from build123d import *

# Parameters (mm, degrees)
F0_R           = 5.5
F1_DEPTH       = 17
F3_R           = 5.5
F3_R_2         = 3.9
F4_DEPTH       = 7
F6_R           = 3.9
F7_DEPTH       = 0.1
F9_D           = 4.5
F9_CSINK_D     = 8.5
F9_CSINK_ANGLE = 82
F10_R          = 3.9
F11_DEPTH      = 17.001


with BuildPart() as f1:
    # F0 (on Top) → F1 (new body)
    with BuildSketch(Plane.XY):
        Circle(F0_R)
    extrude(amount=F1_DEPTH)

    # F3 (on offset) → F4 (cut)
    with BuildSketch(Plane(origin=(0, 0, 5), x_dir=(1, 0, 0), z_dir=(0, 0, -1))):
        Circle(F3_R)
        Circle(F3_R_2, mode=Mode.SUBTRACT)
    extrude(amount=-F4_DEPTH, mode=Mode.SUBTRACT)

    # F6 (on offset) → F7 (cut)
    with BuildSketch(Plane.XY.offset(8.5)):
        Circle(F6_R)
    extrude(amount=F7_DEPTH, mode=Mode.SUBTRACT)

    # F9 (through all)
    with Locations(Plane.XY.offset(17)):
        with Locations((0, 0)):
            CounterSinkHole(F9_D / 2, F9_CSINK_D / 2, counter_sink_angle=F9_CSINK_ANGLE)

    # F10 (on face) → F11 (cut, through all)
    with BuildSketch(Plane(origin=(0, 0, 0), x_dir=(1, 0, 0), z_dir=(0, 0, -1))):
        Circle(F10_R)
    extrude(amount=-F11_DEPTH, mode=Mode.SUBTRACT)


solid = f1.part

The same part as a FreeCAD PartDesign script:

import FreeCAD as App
import Part
import Sketcher

V = App.Vector
Q = App.Units.Quantity

doc = App.newDocument("Part")
params = doc.addObject("Spreadsheet::Sheet", "Params")
for row, (alias, value) in enumerate([
    ("sketch1_diameter", "11 mm"),
    ("pad1_length", "17 mm"),
    ("sketch2_diameter", "11 mm"),
    ("sketch2_diameter2", "7.8 mm"),
    ("pocket1_length", "7 mm"),
    ("sketch3_diameter", "7.8 mm"),
    ("pocket2_length", "0.1 mm"),
    ("sketch4_diameter", "4.5 mm"),
    ("hole_diameter", "4.5 mm"),
    ("hole_csink_diameter", "8.5 mm"),
    ("sketch5_diameter", "7.8 mm"),
], start=1):
    params.set(f"A{row}", alias)
    params.set(f"B{row}", "=" + value)
    params.setAlias(f"B{row}", alias)

body = doc.addObject("PartDesign::Body", "Body")
body.AllowCompound = True

# Sketch on XY plane
sketch1 = body.newObject("Sketcher::SketchObject", "Sketch")
sketch1.AttachmentSupport = (doc.getObject("XY_Plane"), [""])
sketch1.MapMode = "FlatFace"
sketch1.addGeometry(Part.Circle(V(0, 0, 0), V(0, 0, 1), 5.5), False)
sketch1.addConstraint([
    Sketcher.Constraint("Coincident", 0, 3, -1, 1),
    Sketcher.Constraint("Diameter", 0, Q("11 mm")),
])
sketch1.setExpression("Constraints[1]", "Params.sketch1_diameter")
pad1 = body.newObject("PartDesign::Pad", "Pad")
pad1.Profile = sketch1
pad1.setExpression("Length", "Params.pad1_length")

# Sketch on XY plane
sketch2 = body.newObject("Sketcher::SketchObject", "Sketch001")
sketch2.AttachmentSupport = (doc.getObject("XY_Plane"), [""])
sketch2.MapMode = "FlatFace"
sketch2.AttachmentOffset = App.Placement(V(0, 0, 5), App.Rotation())
sketch2.addGeometry([
    Part.Circle(V(0, 0, 0), V(0, 0, 1), 5.5),
    Part.Circle(V(0, 0, 0), V(0, 0, 1), 3.9),
], False)
sketch2.addConstraint([
    Sketcher.Constraint("Coincident", 0, 3, -1, 1),
    Sketcher.Constraint("Coincident", 1, 3, -1, 1),
    Sketcher.Constraint("Diameter", 0, Q("11 mm")),
    Sketcher.Constraint("Diameter", 1, Q("7.8 mm")),
])
sketch2.setExpression("Constraints[2]", "Params.sketch2_diameter")
sketch2.setExpression("Constraints[3]", "Params.sketch2_diameter2")
pocket1 = body.newObject("PartDesign::Pocket", "Pocket")
pocket1.Profile = sketch2
pocket1.setExpression("Length", "Params.pocket1_length")
pocket1.Reversed = True

# Sketch on XY plane
sketch3 = body.newObject("Sketcher::SketchObject", "Sketch002")
sketch3.AttachmentSupport = (doc.getObject("XY_Plane"), [""])
sketch3.MapMode = "FlatFace"
sketch3.AttachmentOffset = App.Placement(V(0, 0, 8.5), App.Rotation())
sketch3.addGeometry(Part.Circle(V(0, 0, 0), V(0, 0, 1), 3.9), False)
sketch3.addConstraint([
    Sketcher.Constraint("Coincident", 0, 3, -1, 1),
    Sketcher.Constraint("Diameter", 0, Q("7.8 mm")),
])
sketch3.setExpression("Constraints[1]", "Params.sketch3_diameter")
pocket2 = body.newObject("PartDesign::Pocket", "Pocket001")
pocket2.Profile = sketch3
pocket2.setExpression("Length", "Params.pocket2_length")
pocket2.Reversed = True

# Sketch on XY plane
sketch4 = body.newObject("Sketcher::SketchObject", "Sketch003")
sketch4.AttachmentSupport = (doc.getObject("XY_Plane"), [""])
sketch4.MapMode = "FlatFace"
sketch4.AttachmentOffset = App.Placement(V(0, 0, 17), App.Rotation())
sketch4.addGeometry(Part.Circle(V(0, 0, 0), V(0, 0, 1), 2.25), False)
sketch4.addConstraint([
    Sketcher.Constraint("Coincident", 0, 3, -1, 1),
    Sketcher.Constraint("Diameter", 0, Q("4.5 mm")),
])
sketch4.setExpression("Constraints[1]", "Params.sketch4_diameter")
doc.recompute()
hole = body.newObject("PartDesign::Hole", "Hole")
hole.Profile = sketch4
hole.ThreadType = "None"
hole.setExpression("Diameter", "Params.hole_diameter")
hole.DepthType = "ThroughAll"
hole.HoleCutType = "Countersink"
hole.setExpression("HoleCutDiameter", "Params.hole_csink_diameter")
hole.HoleCutCountersinkAngle = 82

# Sketch on XY plane
sketch5 = body.newObject("Sketcher::SketchObject", "Sketch004")
sketch5.AttachmentSupport = (doc.getObject("XY_Plane"), [""])
sketch5.MapMode = "FlatFace"
sketch5.addGeometry(Part.Circle(V(0, 0, 0), V(0, 0, 1), 3.9), False)
sketch5.addConstraint([
    Sketcher.Constraint("Coincident", 0, 3, -1, 1),
    Sketcher.Constraint("Diameter", 0, Q("7.8 mm")),
])
sketch5.setExpression("Constraints[1]", "Params.sketch5_diameter")
pocket3 = body.newObject("PartDesign::Pocket", "Pocket002")
pocket3.Profile = sketch5
pocket3.Type = "ThroughAll"
pocket3.Reversed = True

doc.recompute()
